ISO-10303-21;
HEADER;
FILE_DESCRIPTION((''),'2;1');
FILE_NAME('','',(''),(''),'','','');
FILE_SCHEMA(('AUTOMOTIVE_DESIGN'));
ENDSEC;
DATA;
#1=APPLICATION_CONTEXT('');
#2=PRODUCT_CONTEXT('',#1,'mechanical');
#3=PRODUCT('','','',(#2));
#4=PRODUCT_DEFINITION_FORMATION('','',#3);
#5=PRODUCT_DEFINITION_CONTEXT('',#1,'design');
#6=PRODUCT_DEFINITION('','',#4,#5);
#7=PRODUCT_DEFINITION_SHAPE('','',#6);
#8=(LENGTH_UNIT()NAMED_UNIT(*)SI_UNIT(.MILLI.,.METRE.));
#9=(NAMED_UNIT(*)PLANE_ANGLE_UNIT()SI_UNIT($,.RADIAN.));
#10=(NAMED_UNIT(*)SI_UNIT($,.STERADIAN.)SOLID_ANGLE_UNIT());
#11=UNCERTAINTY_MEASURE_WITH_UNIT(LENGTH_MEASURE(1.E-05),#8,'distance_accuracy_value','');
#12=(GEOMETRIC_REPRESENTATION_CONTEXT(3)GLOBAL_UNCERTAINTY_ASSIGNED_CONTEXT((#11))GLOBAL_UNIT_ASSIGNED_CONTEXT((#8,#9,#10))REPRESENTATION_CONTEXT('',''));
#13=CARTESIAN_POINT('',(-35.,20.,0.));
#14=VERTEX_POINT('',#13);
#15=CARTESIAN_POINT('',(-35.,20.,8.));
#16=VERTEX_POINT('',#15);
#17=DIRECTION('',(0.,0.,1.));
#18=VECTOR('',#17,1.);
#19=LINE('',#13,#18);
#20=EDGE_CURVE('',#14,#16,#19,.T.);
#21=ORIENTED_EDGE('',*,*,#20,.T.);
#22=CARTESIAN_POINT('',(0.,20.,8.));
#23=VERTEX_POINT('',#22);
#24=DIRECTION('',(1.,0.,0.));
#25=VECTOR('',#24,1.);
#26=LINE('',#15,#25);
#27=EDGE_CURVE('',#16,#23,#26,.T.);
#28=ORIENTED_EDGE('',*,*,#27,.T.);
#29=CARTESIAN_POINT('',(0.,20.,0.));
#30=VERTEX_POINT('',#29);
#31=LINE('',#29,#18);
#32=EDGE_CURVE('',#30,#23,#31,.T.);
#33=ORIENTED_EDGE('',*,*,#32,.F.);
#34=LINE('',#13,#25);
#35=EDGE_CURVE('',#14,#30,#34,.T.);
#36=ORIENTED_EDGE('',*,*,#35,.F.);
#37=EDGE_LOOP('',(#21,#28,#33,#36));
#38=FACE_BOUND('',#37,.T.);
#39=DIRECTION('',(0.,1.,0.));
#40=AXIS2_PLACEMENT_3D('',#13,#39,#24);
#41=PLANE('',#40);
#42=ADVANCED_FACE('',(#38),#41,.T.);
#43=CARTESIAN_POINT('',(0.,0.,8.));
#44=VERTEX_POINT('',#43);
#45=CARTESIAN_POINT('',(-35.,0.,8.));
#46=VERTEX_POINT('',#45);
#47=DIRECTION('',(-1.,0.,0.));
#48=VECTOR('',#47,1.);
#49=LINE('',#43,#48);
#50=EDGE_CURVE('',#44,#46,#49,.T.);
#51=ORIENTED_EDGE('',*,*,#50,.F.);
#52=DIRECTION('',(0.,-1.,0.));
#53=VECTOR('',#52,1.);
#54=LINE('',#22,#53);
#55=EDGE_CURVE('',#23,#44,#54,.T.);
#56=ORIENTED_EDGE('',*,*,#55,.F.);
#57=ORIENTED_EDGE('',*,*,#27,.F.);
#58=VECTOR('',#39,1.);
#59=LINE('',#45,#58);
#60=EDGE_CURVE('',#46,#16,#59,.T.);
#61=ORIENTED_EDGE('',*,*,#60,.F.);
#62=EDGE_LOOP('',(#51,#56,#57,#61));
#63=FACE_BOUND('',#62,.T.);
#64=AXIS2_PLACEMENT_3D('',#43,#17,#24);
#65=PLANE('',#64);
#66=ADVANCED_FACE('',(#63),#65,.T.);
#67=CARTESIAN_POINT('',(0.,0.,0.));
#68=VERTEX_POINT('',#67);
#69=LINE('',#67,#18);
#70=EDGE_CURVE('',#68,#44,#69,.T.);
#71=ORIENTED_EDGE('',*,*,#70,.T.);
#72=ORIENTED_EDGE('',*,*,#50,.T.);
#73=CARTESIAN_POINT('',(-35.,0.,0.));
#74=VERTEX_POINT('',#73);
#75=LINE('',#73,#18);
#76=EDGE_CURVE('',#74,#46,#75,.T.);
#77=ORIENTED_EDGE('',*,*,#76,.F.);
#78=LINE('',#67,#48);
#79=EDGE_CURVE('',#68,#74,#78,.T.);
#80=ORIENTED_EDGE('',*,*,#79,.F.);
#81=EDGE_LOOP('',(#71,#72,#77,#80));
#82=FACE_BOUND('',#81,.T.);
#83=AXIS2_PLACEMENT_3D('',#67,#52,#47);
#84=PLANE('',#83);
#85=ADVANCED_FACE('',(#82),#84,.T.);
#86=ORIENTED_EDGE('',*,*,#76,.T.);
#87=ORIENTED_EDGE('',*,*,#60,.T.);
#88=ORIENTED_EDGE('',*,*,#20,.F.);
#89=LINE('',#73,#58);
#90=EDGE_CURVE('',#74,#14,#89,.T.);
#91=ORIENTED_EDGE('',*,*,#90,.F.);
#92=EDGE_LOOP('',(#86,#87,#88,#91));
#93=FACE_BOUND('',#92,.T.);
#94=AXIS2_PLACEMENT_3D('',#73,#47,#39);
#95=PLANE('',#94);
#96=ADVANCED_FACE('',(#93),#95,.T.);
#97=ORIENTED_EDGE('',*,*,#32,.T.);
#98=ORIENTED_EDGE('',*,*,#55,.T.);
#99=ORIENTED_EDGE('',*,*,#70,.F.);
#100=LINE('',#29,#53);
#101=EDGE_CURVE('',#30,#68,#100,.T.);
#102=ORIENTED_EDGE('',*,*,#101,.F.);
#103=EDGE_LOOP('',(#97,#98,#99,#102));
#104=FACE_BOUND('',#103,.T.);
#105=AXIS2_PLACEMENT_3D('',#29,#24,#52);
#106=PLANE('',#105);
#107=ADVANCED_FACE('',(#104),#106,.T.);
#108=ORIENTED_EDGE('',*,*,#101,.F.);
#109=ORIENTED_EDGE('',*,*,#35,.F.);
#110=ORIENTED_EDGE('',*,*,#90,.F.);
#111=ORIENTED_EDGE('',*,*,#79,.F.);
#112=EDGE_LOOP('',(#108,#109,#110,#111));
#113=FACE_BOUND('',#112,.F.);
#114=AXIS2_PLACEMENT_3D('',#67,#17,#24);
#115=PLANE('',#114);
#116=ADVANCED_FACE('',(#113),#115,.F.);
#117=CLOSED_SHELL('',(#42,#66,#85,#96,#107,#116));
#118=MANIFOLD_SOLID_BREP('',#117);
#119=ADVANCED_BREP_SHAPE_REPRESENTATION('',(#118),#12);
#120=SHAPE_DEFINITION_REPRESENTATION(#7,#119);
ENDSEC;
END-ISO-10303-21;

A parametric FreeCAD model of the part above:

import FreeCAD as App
import Part
import Sketcher


def add_polygon(sketch, points):
    """Adds a closed chain of lines whose ends are joined by coincident constraints."""
    first, n = sketch.GeometryCount, len(points)
    for a, b in zip(points, points[1:] + points[:1]):
        sketch.addGeometry(Part.LineSegment(App.Vector(*a, 0), App.Vector(*b, 0)), False)
    for i in range(n):
        sketch.addConstraint(Sketcher.Constraint("Coincident", first + i, 2, first + (i + 1) % n, 1))

doc = App.newDocument("Part")
body = doc.addObject("PartDesign::Body", "Body")

# Sketch on XY plane
sketch1 = doc.addObject("Sketcher::SketchObject", "Sketch")
body.addObject(sketch1)
sketch1.AttachmentSupport = (doc.XY_Plane, [""])
sketch1.MapMode = "FlatFace"
add_polygon(sketch1, [(-35, 0), (0, 0), (0, 20), (-35, 20)])  # lines 0-3
sketch1.addConstraint(Sketcher.Constraint("Horizontal", 0))
sketch1.addConstraint(Sketcher.Constraint("Vertical", 1))
sketch1.addConstraint(Sketcher.Constraint("Horizontal", 2))
sketch1.addConstraint(Sketcher.Constraint("Vertical", 3))
sketch1.addConstraint(Sketcher.Constraint("Coincident", 0, 2, -1, 1))
sketch1.addConstraint(Sketcher.Constraint("DistanceX", 0, 1, 0, 2, 35.0))
sketch1.addConstraint(Sketcher.Constraint("DistanceY", 1, 1, 1, 2, 20.0))
pad1 = doc.addObject("PartDesign::Pad", "Pad")
body.addObject(pad1)
pad1.Profile = sketch1
pad1.Length = 8

doc.recompute()
